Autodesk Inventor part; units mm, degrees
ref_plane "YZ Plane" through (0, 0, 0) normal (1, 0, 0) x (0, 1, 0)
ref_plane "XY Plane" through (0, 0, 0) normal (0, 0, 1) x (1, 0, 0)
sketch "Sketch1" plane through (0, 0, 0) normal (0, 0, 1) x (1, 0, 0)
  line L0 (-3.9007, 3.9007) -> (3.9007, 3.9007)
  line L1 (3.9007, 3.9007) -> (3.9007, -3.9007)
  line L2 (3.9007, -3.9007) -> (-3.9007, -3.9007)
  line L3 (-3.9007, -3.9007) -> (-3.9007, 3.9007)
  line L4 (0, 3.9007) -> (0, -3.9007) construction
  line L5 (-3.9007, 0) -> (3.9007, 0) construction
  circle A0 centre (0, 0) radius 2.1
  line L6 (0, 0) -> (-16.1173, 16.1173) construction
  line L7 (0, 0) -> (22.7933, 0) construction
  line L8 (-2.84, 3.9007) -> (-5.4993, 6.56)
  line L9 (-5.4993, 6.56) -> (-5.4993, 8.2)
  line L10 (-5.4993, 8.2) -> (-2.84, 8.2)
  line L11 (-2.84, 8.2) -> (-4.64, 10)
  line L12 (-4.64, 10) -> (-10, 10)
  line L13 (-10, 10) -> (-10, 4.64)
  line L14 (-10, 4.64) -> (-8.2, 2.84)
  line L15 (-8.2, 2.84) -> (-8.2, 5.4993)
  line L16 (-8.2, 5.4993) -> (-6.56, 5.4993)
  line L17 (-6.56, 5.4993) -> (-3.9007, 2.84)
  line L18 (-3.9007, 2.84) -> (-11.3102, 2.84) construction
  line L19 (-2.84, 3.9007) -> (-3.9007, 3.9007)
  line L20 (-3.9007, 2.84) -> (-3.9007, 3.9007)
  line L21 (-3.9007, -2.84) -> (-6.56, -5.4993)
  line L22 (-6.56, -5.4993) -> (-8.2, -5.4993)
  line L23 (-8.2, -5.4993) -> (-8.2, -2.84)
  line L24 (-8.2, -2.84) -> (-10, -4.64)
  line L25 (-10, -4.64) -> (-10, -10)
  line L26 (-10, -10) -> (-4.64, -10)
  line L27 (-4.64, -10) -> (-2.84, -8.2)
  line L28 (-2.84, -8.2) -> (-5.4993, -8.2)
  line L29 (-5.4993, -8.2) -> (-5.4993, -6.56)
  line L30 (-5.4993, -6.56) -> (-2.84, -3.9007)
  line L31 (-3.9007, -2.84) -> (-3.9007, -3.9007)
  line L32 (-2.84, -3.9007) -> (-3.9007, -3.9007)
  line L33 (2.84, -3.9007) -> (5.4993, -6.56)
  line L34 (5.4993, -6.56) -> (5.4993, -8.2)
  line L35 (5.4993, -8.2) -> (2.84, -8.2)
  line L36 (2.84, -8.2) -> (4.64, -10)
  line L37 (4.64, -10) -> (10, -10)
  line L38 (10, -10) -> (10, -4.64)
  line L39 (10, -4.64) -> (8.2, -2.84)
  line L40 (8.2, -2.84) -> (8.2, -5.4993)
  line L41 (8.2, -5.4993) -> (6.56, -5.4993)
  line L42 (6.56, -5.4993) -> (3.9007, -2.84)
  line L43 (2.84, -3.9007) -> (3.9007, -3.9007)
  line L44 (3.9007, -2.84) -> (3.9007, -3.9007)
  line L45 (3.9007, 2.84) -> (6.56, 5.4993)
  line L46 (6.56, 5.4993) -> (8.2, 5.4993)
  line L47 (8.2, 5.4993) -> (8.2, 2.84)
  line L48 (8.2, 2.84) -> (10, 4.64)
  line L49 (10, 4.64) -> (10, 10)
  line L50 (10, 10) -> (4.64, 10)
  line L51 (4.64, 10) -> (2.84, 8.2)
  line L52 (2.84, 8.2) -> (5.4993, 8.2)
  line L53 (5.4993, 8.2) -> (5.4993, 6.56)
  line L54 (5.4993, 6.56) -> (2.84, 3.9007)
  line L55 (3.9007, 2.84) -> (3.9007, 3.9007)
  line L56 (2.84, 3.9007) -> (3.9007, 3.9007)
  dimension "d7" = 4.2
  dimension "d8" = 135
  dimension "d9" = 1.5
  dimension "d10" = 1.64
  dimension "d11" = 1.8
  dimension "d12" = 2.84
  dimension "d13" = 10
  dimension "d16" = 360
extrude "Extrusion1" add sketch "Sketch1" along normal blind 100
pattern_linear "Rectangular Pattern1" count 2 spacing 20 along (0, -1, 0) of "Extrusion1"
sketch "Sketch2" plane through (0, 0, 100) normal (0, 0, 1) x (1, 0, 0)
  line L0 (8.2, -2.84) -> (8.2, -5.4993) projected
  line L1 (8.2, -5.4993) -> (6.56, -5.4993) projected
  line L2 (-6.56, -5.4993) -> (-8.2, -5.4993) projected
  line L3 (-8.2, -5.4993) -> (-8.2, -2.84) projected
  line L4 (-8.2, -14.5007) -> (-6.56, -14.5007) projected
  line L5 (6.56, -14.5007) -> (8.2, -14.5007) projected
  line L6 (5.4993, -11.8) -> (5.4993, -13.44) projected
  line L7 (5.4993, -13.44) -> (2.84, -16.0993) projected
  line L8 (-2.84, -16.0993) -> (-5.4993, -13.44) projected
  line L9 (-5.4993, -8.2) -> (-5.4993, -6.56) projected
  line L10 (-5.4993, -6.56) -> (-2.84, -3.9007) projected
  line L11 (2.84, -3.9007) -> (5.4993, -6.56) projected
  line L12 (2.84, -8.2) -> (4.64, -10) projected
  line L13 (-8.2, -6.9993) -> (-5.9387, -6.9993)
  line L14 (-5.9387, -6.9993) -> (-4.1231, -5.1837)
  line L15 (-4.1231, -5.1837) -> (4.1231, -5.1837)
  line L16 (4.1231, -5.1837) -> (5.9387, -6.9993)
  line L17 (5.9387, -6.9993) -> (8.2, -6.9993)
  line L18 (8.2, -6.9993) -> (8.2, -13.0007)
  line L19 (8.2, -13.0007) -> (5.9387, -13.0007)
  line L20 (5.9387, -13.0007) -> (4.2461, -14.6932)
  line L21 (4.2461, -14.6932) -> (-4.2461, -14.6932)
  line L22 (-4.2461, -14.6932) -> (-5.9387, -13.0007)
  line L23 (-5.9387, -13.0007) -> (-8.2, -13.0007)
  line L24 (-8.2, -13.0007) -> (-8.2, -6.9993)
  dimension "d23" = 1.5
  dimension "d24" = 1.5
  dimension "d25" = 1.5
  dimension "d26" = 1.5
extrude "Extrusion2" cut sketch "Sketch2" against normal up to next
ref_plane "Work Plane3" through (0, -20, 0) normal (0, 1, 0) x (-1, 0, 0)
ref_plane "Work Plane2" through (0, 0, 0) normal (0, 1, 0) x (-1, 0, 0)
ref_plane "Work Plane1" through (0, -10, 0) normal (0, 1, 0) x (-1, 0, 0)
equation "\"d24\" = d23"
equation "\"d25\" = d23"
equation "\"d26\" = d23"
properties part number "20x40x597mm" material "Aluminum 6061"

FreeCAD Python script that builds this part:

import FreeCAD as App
import Part
import Sketcher
Q = App.Units.Quantity

doc = App.newDocument("Part")
body = doc.addObject("PartDesign::Body", "Body")

# Sketch on XY plane
sketch1 = body.newObject("Sketcher::SketchObject", "Sketch")
sketch1.AttachmentSupport = (doc.getObject("XY_Plane"), [""])
sketch1.MapMode = "FlatFace"
sketch1.addGeometry([
    Part.LineSegment(App.Vector(-6.6, 5.5, 0), App.Vector(-3.9, 2.8, 0)),  # 0
    Part.LineSegment(App.Vector(-3.9, 2.8, 0), App.Vector(-3.9, -2.8, 0)),  # 1
    Part.LineSegment(App.Vector(-3.9, -2.8, 0), App.Vector(-6.6, -5.5, 0)),  # 2
    Part.LineSegment(App.Vector(-6.6, -5.5, 0), App.Vector(-8.2, -5.5, 0)),  # 3
    Part.LineSegment(App.Vector(-8.2, -5.5, 0), App.Vector(-8.2, -2.8, 0)),  # 4
    Part.LineSegment(App.Vector(-8.2, -2.8, 0), App.Vector(-10, -4.6, 0)),  # 5
    Part.LineSegment(App.Vector(-10, -4.6, 0), App.Vector(-10, -10, 0)),  # 6
    Part.LineSegment(App.Vector(-10, -10, 0), App.Vector(-4.6, -10, 0)),  # 7
    Part.LineSegment(App.Vector(-4.6, -10, 0), App.Vector(-2.8, -8.2, 0)),  # 8
    Part.LineSegment(App.Vector(-2.8, -8.2, 0), App.Vector(-5.5, -8.2, 0)),  # 9
    Part.LineSegment(App.Vector(-5.5, -8.2, 0), App.Vector(-5.5, -6.6, 0)),  # 10
    Part.LineSegment(App.Vector(-5.5, -6.6, 0), App.Vector(-2.8, -3.9, 0)),  # 11
    Part.LineSegment(App.Vector(-2.8, -3.9, 0), App.Vector(2.8, -3.9, 0)),  # 12
    Part.LineSegment(App.Vector(2.8, -3.9, 0), App.Vector(5.5, -6.6, 0)),  # 13
    Part.LineSegment(App.Vector(5.5, -6.6, 0), App.Vector(5.5, -8.2, 0)),  # 14
    Part.LineSegment(App.Vector(5.5, -8.2, 0), App.Vector(2.8, -8.2, 0)),  # 15
    Part.LineSegment(App.Vector(2.8, -8.2, 0), App.Vector(4.6, -10, 0)),  # 16
    Part.LineSegment(App.Vector(4.6, -10, 0), App.Vector(10, -10, 0)),  # 17
    Part.LineSegment(App.Vector(10, -10, 0), App.Vector(10, -4.6, 0)),  # 18
    Part.LineSegment(App.Vector(10, -4.6, 0), App.Vector(8.2, -2.8, 0)),  # 19
    Part.LineSegment(App.Vector(8.2, -2.8, 0), App.Vector(8.2, -5.5, 0)),  # 20
    Part.LineSegment(App.Vector(8.2, -5.5, 0), App.Vector(6.6, -5.5, 0)),  # 21
    Part.LineSegment(App.Vector(6.6, -5.5, 0), App.Vector(3.9, -2.8, 0)),  # 22
    Part.LineSegment(App.Vector(3.9, -2.8, 0), App.Vector(3.9, 2.8, 0)),  # 23
    Part.LineSegment(App.Vector(3.9, 2.8, 0), App.Vector(6.6, 5.5, 0)),  # 24
    Part.LineSegment(App.Vector(6.6, 5.5, 0), App.Vector(8.2, 5.5, 0)),  # 25
    Part.LineSegment(App.Vector(8.2, 5.5, 0), App.Vector(8.2, 2.8, 0)),  # 26
    Part.LineSegment(App.Vector(8.2, 2.8, 0), App.Vector(10, 4.6, 0)),  # 27
    Part.LineSegment(App.Vector(10, 4.6, 0), App.Vector(10, 10, 0)),  # 28
    Part.LineSegment(App.Vector(10, 10, 0), App.Vector(4.6, 10, 0)),  # 29
    Part.LineSegment(App.Vector(4.6, 10, 0), App.Vector(2.8, 8.2, 0)),  # 30
    Part.LineSegment(App.Vector(2.8, 8.2, 0), App.Vector(5.5, 8.2, 0)),  # 31
    Part.LineSegment(App.Vector(5.5, 8.2, 0), App.Vector(5.5, 6.6, 0)),  # 32
    Part.LineSegment(App.Vector(5.5, 6.6, 0), App.Vector(2.8, 3.9, 0)),  # 33
    Part.LineSegment(App.Vector(2.8, 3.9, 0), App.Vector(-2.8, 3.9, 0)),  # 34
    Part.LineSegment(App.Vector(-2.8, 3.9, 0), App.Vector(-5.5, 6.6, 0)),  # 35
    Part.LineSegment(App.Vector(-5.5, 6.6, 0), App.Vector(-5.5, 8.2, 0)),  # 36
    Part.LineSegment(App.Vector(-5.5, 8.2, 0), App.Vector(-2.8, 8.2, 0)),  # 37
    Part.LineSegment(App.Vector(-2.8, 8.2, 0), App.Vector(-4.6, 10, 0)),  # 38
    Part.LineSegment(App.Vector(-4.6, 10, 0), App.Vector(-10, 10, 0)),  # 39
    Part.LineSegment(App.Vector(-10, 10, 0), App.Vector(-10, 4.6, 0)),  # 40
    Part.LineSegment(App.Vector(-10, 4.6, 0), App.Vector(-8.2, 2.8, 0)),  # 41
    Part.LineSegment(App.Vector(-8.2, 2.8, 0), App.Vector(-8.2, 5.5, 0)),  # 42
    Part.LineSegment(App.Vector(-8.2, 5.5, 0), App.Vector(-6.6, 5.5, 0)),  # 43
    Part.Circle(App.Vector(0, 0, 0), App.Vector(0, 0, 1), 2.1),  # 44
], False)
sketch1.addConstraint([
    Sketcher.Constraint("Coincident", 0, 2, 1, 1),
    Sketcher.Constraint("Coincident", 1, 2, 2, 1),
    Sketcher.Constraint("Coincident", 2, 2, 3, 1),
    Sketcher.Constraint("Coincident", 3, 2, 4, 1),
    Sketcher.Constraint("Coincident", 4, 2, 5, 1),
    Sketcher.Constraint("Coincident", 5, 2, 6, 1),
    Sketcher.Constraint("Coincident", 6, 2, 7, 1),
    Sketcher.Constraint("Coincident", 7, 2, 8, 1),
    Sketcher.Constraint("Coincident", 8, 2, 9, 1),
    Sketcher.Constraint("Coincident", 9, 2, 10, 1),
    Sketcher.Constraint("Coincident", 10, 2, 11, 1),
    Sketcher.Constraint("Coincident", 11, 2, 12, 1),
    Sketcher.Constraint("Coincident", 12, 2, 13, 1),
    Sketcher.Constraint("Coincident", 13, 2, 14, 1),
    Sketcher.Constraint("Coincident", 14, 2, 15, 1),
    Sketcher.Constraint("Coincident", 15, 2, 16, 1),
    Sketcher.Constraint("Coincident", 16, 2, 17, 1),
    Sketcher.Constraint("Coincident", 17, 2, 18, 1),
    Sketcher.Constraint("Coincident", 18, 2, 19, 1),
    Sketcher.Constraint("Coincident", 19, 2, 20, 1),
    Sketcher.Constraint("Coincident", 20, 2, 21, 1),
    Sketcher.Constraint("Coincident", 21, 2, 22, 1),
    Sketcher.Constraint("Coincident", 22, 2, 23, 1),
    Sketcher.Constraint("Coincident", 23, 2, 24, 1),
    Sketcher.Constraint("Coincident", 24, 2, 25, 1),
    Sketcher.Constraint("Coincident", 25, 2, 26, 1),
    Sketcher.Constraint("Coincident", 26, 2, 27, 1),
    Sketcher.Constraint("Coincident", 27, 2, 28, 1),
    Sketcher.Constraint("Coincident", 28, 2, 29, 1),
    Sketcher.Constraint("Coincident", 29, 2, 30, 1),
    Sketcher.Constraint("Coincident", 30, 2, 31, 1),
    Sketcher.Constraint("Coincident", 31, 2, 32, 1),
    Sketcher.Constraint("Coincident", 32, 2, 33, 1),
    Sketcher.Constraint("Coincident", 33, 2, 34, 1),
    Sketcher.Constraint("Coincident", 34, 2, 35, 1),
    Sketcher.Constraint("Coincident", 35, 2, 36, 1),
    Sketcher.Constraint("Coincident", 36, 2, 37, 1),
    Sketcher.Constraint("Coincident", 37, 2, 38, 1),
    Sketcher.Constraint("Coincident", 38, 2, 39, 1),
    Sketcher.Constraint("Coincident", 39, 2, 40, 1),
    Sketcher.Constraint("Coincident", 40, 2, 41, 1),
    Sketcher.Constraint("Coincident", 41, 2, 42, 1),
    Sketcher.Constraint("Coincident", 42, 2, 43, 1),
    Sketcher.Constraint("Coincident", 43, 2, 0, 1),
    Sketcher.Constraint("Vertical", 1),
    Sketcher.Constraint("Horizontal", 3),
    Sketcher.Constraint("Vertical", 4),
    Sketcher.Constraint("Vertical", 6),
    Sketcher.Constraint("Horizontal", 7),
    Sketcher.Constraint("Horizontal", 9),
    Sketcher.Constraint("Vertical", 10),
    Sketcher.Constraint("Horizontal", 12),
    Sketcher.Constraint("Vertical", 14),
    Sketcher.Constraint("Horizontal", 15),
    Sketcher.Constraint("Horizontal", 17),
    Sketcher.Constraint("Vertical", 18),
    Sketcher.Constraint("Vertical", 20),
    Sketcher.Constraint("Horizontal", 21),
    Sketcher.Constraint("Vertical", 23),
    Sketcher.Constraint("Horizontal", 25),
    Sketcher.Constraint("Vertical", 26),
    Sketcher.Constraint("Vertical", 28),
    Sketcher.Constraint("Horizontal", 29),
    Sketcher.Constraint("Horizontal", 31),
    Sketcher.Constraint("Vertical", 32),
    Sketcher.Constraint("Horizontal", 34),
    Sketcher.Constraint("Vertical", 36),
    Sketcher.Constraint("Horizontal", 37),
    Sketcher.Constraint("Horizontal", 39),
    Sketcher.Constraint("Vertical", 40),
    Sketcher.Constraint("Vertical", 42),
    Sketcher.Constraint("Horizontal", 43),
    Sketcher.Constraint("Coincident", 44, 3, -1, 1),
    Sketcher.Constraint("Symmetric", 0, 2, 22, 2, -1, 1),
    Sketcher.Constraint("Symmetric", 2, 2, 24, 2, -1, 1),
    Sketcher.Constraint("Symmetric", 4, 2, 26, 2, -1, 1),
    Sketcher.Constraint("Symmetric", 5, 2, 27, 2, -1, 1),
    Sketcher.Constraint("Symmetric", 7, 2, 29, 2, -1, 1),
    Sketcher.Constraint("Symmetric", 8, 2, 30, 2, -1, 1),
    Sketcher.Constraint("Symmetric", 10, 2, 32, 2, -1, 1),
    Sketcher.Constraint("Symmetric", 11, 2, 33, 2, -1, 1),
    Sketcher.Constraint("Symmetric", 13, 2, 35, 2, -1, 1),
    Sketcher.Constraint("Symmetric", 15, 2, 37, 2, -1, 1),
    Sketcher.Constraint("Symmetric", 16, 2, 38, 2, -1, 1),
    Sketcher.Constraint("Symmetric", 18, 2, 40, 2, -1, 1),
    Sketcher.Constraint("Symmetric", 19, 2, 41, 2, -1, 1),
    Sketcher.Constraint("Symmetric", 21, 2, 43, 2, -1, 1),
    Sketcher.Constraint("Symmetric", 10, 2, 13, 2, -2),
    Sketcher.Constraint("Symmetric", 8, 2, 15, 2, -2),
    Sketcher.Constraint("Symmetric", 7, 2, 16, 2, -2),
    Sketcher.Constraint("Symmetric", 5, 2, 18, 2, -2),
    Sketcher.Constraint("Symmetric", 4, 2, 19, 2, -2),
    Sketcher.Constraint("Symmetric", 2, 2, 21, 2, -2),
    Sketcher.Constraint("Perpendicular", 0, 2),
    Sketcher.Constraint("Parallel", 2, 5),
    Sketcher.Constraint("Parallel", 5, 8),
    Sketcher.Constraint("Parallel", 8, 11),
    Sketcher.Constraint("Perpendicular", 11, 13),
    Sketcher.Constraint("Parallel", 13, 16),
    Sketcher.Constraint("Perpendicular", 22, 24),
    Sketcher.Constraint("Perpendicular", 33, 35),
    Sketcher.Constraint("Horizontal", 1, 2, 4, 2),
    Sketcher.Constraint("Vertical", 8, 2, 11, 2),
    Sketcher.Constraint("Equal", 34, 1),
    Sketcher.Constraint("Equal", 37, 4),
    Sketcher.Constraint("Equal", 39, 6),
    Sketcher.Constraint("Equal", 43, 10),
    Sketcher.Constraint("Equal", 5, 8),
    Sketcher.Constraint("Diameter", 44, Q("4.2 mm")),
    Sketcher.Constraint("DistanceX", 5, 2, -1, 1, Q("10 mm")),
    Sketcher.Constraint("DistanceX", 3, 2, 3, 1, Q("1.64 mm")),
    Sketcher.Constraint("DistanceX", 5, 2, 3, 2, Q("1.8 mm")),
    Sketcher.Constraint("DistanceY", -1, 1, 0, 2, Q("2.84 mm")),
    Sketcher.Constraint("DistanceX", 9, 2, 9, 1, Q("2.6593 mm")),
])
pad1 = body.newObject("PartDesign::Pad", "Pad")
pad1.Profile = sketch1
pad1.Length = 100
doc.recompute()

linearpattern = body.newObject("PartDesign::LinearPattern", "LinearPattern")
linearpattern.Originals = [pad1]
linearpattern.Direction = (doc.getObject("Y_Axis"), [""])
linearpattern.Mode = "offset"
linearpattern.Offset = 20
linearpattern.Occurrences = 2
linearpattern.Reversed = True
body.Tip = linearpattern

# Sketch on XY plane
sketch2 = body.newObject("Sketcher::SketchObject", "Sketch001")
sketch2.AttachmentSupport = (doc.getObject("XY_Plane"), [""])
sketch2.MapMode = "FlatFace"
sketch2.AttachmentOffset = App.Placement(App.Vector(0, 0, 100), App.Rotation())
sketch2.addGeometry([
    Part.LineSegment(App.Vector(4.2, -14.7, 0), App.Vector(5.5, -13.4, 0)),  # 0
    Part.LineSegment(App.Vector(5.5, -13.4, 0), App.Vector(5.9, -13, 0)),  # 1
    Part.LineSegment(App.Vector(5.9, -13, 0), App.Vector(8.2, -13, 0)),  # 2
    Part.LineSegment(App.Vector(8.2, -13, 0), App.Vector(8.2, -7, 0)),  # 3
    Part.LineSegment(App.Vector(8.2, -7, 0), App.Vector(5.9, -7, 0)),  # 4
    Part.LineSegment(App.Vector(5.9, -7, 0), App.Vector(5.5, -6.6, 0)),  # 5
    Part.LineSegment(App.Vector(5.5, -6.6, 0), App.Vector(4.1, -5.2, 0)),  # 6
    Part.LineSegment(App.Vector(4.1, -5.2, 0), App.Vector(-4.1, -5.2, 0)),  # 7
    Part.LineSegment(App.Vector(-4.1, -5.2, 0), App.Vector(-5.5, -6.6, 0)),  # 8
    Part.LineSegment(App.Vector(-5.5, -6.6, 0), App.Vector(-5.9, -7, 0)),  # 9
    Part.LineSegment(App.Vector(-5.9, -7, 0), App.Vector(-8.2, -7, 0)),  # 10
    Part.LineSegment(App.Vector(-8.2, -7, 0), App.Vector(-8.2, -13, 0)),  # 11
    Part.LineSegment(App.Vector(-8.2, -13, 0), App.Vector(-5.9, -13, 0)),  # 12
    Part.LineSegment(App.Vector(-5.9, -13, 0), App.Vector(-5.5, -13.4, 0)),  # 13
    Part.LineSegment(App.Vector(-5.5, -13.4, 0), App.Vector(-4.2, -14.7, 0)),  # 14
    Part.LineSegment(App.Vector(-4.2, -14.7, 0), App.Vector(4.2, -14.7, 0)),  # 15
], False)
sketch2.addConstraint([
    Sketcher.Constraint("Coincident", 0, 2, 1, 1),
    Sketcher.Constraint("Coincident", 1, 2, 2, 1),
    Sketcher.Constraint("Coincident", 2, 2, 3, 1),
    Sketcher.Constraint("Coincident", 3, 2, 4, 1),
    Sketcher.Constraint("Coincident", 4, 2, 5, 1),
    Sketcher.Constraint("Coincident", 5, 2, 6, 1),
    Sketcher.Constraint("Coincident", 6, 2, 7, 1),
    Sketcher.Constraint("Coincident", 7, 2, 8, 1),
    Sketcher.Constraint("Coincident", 8, 2, 9, 1),
    Sketcher.Constraint("Coincident", 9, 2, 10, 1),
    Sketcher.Constraint("Coincident", 10, 2, 11, 1),
    Sketcher.Constraint("Coincident", 11, 2, 12, 1),
    Sketcher.Constraint("Coincident", 12, 2, 13, 1),
    Sketcher.Constraint("Coincident", 13, 2, 14, 1),
    Sketcher.Constraint("Coincident", 14, 2, 15, 1),
    Sketcher.Constraint("Coincident", 15, 2, 0, 1),
    Sketcher.Constraint("Horizontal", 2),
    Sketcher.Constraint("Vertical", 3),
    Sketcher.Constraint("Horizontal", 4),
    Sketcher.Constraint("Horizontal", 7),
    Sketcher.Constraint("Horizontal", 10),
    Sketcher.Constraint("Vertical", 11),
    Sketcher.Constraint("Horizontal", 12),
    Sketcher.Constraint("Horizontal", 15),
    Sketcher.Constraint("Symmetric", 5, 2, 8, 2, -2),
    Sketcher.Constraint("Symmetric", 4, 2, 9, 2, -2),
    Sketcher.Constraint("Symmetric", 2, 2, 11, 2, -2),
    Sketcher.Constraint("Symmetric", 0, 2, 13, 2, -2),
    Sketcher.Constraint("Parallel", 0, 1),
    Sketcher.Constraint("Perpendicular", 1, 5),
    Sketcher.Constraint("Parallel", 5, 6),
    Sketcher.Constraint("Perpendicular", 6, 8),
    Sketcher.Constraint("Parallel", 8, 9),
    Sketcher.Constraint("Perpendicular", 9, 13),
    Sketcher.Constraint("Parallel", 13, 14),
    Sketcher.Constraint("Vertical", 1, 2, 4, 2),
    Sketcher.Constraint("Vertical", 0, 2, 5, 2),
    Sketcher.Constraint("DistanceX", -1, 1, 2, 2, Q("8.2 mm")),
    Sketcher.Constraint("DistanceY", 0, 2, -1, 1, Q("13.44 mm")),
    Sketcher.Constraint("DistanceY", 5, 2, -1, 1, Q("6.56 mm")),
    Sketcher.Constraint("DistanceX", 2, 1, 2, 2, Q("2.2613 mm")),
    Sketcher.Constraint("DistanceX", 7, 2, 7, 1, Q("8.2462 mm")),
    Sketcher.Constraint("DistanceX", 15, 1, 15, 2, Q("8.4922 mm")),
    Sketcher.Constraint("DistanceY", 3, 1, 3, 2, Q("6.0014 mm")),
])
pocket1 = body.newObject("PartDesign::Pocket", "Pocket")
pocket1.Profile = sketch2
pocket1.Length = 100

doc.recompute()
